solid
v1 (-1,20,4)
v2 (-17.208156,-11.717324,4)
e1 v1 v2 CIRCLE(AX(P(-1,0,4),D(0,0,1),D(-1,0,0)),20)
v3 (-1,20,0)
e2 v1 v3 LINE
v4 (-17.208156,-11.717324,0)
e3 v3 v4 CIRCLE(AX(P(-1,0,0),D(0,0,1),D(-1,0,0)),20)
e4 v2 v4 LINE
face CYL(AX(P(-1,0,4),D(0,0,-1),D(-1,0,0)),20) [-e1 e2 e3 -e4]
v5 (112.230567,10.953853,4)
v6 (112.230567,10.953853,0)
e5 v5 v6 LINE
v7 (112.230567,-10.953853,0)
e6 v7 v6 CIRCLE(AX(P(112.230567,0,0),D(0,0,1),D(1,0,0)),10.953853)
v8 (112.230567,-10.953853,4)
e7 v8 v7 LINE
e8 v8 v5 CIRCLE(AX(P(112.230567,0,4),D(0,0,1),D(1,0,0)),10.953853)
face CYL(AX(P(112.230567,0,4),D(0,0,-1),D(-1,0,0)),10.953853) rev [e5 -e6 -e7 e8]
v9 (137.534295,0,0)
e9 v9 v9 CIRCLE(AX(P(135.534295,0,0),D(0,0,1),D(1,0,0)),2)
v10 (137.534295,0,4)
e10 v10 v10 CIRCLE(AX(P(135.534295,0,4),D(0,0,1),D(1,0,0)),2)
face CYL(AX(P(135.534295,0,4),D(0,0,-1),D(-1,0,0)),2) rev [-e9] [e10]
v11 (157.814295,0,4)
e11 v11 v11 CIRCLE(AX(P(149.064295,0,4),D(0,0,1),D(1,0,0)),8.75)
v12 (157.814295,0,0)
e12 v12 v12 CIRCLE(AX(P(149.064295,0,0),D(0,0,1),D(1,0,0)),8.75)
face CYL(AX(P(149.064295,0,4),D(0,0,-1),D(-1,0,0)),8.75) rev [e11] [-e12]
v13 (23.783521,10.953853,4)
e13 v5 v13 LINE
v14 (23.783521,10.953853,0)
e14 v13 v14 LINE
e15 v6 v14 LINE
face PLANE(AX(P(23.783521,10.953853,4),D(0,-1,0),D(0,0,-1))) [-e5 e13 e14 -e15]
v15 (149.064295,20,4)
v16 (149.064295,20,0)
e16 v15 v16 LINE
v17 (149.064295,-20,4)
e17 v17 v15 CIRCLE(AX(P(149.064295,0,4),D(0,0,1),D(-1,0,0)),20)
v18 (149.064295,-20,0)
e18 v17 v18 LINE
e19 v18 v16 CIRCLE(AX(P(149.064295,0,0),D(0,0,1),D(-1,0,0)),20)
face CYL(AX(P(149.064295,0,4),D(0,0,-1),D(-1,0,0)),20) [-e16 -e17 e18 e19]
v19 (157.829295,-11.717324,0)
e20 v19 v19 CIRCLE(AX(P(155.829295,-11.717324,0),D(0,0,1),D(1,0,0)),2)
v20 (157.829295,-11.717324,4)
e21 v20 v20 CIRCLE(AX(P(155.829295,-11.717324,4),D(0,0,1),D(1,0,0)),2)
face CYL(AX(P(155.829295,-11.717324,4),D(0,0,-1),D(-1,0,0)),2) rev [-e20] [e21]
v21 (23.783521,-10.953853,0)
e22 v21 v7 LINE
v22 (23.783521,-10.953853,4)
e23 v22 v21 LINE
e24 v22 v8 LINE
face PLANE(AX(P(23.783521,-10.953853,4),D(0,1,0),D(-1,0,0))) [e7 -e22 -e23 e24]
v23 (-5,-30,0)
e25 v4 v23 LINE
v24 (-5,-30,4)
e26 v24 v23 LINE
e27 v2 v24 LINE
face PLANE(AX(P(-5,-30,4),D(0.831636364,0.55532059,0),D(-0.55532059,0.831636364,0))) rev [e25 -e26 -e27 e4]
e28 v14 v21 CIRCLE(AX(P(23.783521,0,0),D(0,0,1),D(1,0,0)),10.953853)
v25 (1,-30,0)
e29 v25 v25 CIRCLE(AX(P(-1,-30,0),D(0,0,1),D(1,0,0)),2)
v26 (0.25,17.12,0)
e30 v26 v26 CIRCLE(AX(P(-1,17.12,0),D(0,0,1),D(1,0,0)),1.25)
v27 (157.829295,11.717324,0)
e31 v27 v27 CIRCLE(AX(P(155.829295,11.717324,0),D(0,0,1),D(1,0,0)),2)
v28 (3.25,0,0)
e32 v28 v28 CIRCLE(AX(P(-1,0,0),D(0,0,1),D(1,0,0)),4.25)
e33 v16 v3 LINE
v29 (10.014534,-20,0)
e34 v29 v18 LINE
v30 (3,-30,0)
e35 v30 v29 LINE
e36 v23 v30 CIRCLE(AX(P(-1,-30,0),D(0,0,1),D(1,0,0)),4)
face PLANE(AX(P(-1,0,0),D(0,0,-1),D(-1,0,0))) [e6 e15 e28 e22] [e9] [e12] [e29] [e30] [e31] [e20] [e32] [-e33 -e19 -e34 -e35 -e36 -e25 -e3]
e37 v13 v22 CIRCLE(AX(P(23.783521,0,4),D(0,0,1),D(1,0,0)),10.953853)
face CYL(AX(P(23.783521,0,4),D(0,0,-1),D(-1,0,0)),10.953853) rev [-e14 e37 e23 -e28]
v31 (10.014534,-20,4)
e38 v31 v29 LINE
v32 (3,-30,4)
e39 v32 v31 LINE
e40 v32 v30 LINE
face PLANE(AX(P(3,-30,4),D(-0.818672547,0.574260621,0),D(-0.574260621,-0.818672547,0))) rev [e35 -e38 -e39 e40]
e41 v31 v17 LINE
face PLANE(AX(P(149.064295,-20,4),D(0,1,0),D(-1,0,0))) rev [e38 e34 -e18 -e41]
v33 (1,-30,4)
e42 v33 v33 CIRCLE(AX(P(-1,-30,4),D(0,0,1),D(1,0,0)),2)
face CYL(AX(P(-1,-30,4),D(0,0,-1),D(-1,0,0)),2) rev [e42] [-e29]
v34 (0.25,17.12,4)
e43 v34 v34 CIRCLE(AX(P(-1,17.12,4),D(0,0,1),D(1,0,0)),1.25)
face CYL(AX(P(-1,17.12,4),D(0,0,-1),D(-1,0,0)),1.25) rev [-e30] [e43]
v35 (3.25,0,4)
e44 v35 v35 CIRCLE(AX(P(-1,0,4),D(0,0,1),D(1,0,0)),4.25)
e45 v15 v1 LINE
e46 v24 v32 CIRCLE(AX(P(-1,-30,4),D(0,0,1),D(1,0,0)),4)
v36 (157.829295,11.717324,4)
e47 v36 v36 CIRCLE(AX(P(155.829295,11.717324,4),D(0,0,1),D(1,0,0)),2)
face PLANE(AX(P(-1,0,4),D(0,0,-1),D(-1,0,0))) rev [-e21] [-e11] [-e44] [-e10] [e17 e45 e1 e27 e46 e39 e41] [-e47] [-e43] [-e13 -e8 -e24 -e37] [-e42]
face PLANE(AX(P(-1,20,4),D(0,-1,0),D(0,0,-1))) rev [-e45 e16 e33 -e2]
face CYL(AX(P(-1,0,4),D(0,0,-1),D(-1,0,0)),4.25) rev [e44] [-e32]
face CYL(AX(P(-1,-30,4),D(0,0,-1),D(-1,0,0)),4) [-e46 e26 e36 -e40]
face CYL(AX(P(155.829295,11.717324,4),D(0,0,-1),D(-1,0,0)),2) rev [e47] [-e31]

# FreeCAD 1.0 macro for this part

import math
import FreeCAD as App
import Part
import Sketcher
Q = App.Units.Quantity

doc = App.newDocument("Part")
body = doc.addObject("PartDesign::Body", "Body")

sketch1 = body.newObject("Sketcher::SketchObject", "Sketch")
sketch1.AttachmentSupport = (doc.getObject("XY_Plane"), [""])
sketch1.MapMode = "FlatFace"
sketch1.addGeometry(Part.LineSegment(App.Vector(-17.2, -11.7, 0), App.Vector(-5, -30, 0)), False)
sketch1.addGeometry(Part.ArcOfCircle(Part.Circle(App.Vector(-1, -30, 0), App.Vector(0, 0, 1), 4), math.radians(180), math.radians(360)), False)
sketch1.addGeometry(Part.LineSegment(App.Vector(3, -30, 0), App.Vector(10, -20, 0)), False)
sketch1.addGeometry(Part.LineSegment(App.Vector(10, -20, 0), App.Vector(149.1, -20, 0)), False)
sketch1.addGeometry(Part.ArcOfCircle(Part.Circle(App.Vector(149.1, 0, 0), App.Vector(0, 0, 1), 20), math.radians(-90), math.radians(90)), False)
sketch1.addGeometry(Part.LineSegment(App.Vector(149.1, 20, 0), App.Vector(-1, 20, 0)), False)
sketch1.addGeometry(Part.ArcOfCircle(Part.Circle(App.Vector(-1, 0, 0), App.Vector(0, 0, 1), 20), math.radians(90), math.radians(216)), False)
sketch1.addGeometry(Part.Circle(App.Vector(155.8, -11.7, 0), App.Vector(0, 0, 1), 2), False)
sketch1.addGeometry(Part.Circle(App.Vector(-1, -30, 0), App.Vector(0, 0, 1), 2), False)
sketch1.addGeometry(Part.Circle(App.Vector(149.1, 0, 0), App.Vector(0, 0, 1), 8.8), False)
sketch1.addGeometry(Part.Circle(App.Vector(135.5, 0, 0), App.Vector(0, 0, 1), 2), False)
sketch1.addGeometry(Part.Circle(App.Vector(155.8, 11.7, 0), App.Vector(0, 0, 1), 2), False)
sketch1.addGeometry(Part.LineSegment(App.Vector(23.8, 11, 0), App.Vector(112.2, 11, 0)), False)
sketch1.addGeometry(Part.ArcOfCircle(Part.Circle(App.Vector(112.2, 0, 0), App.Vector(0, 0, 1), 11), math.radians(-90), math.radians(90)), False)
sketch1.addGeometry(Part.LineSegment(App.Vector(112.2, -11, 0), App.Vector(23.8, -11, 0)), False)
sketch1.addGeometry(Part.ArcOfCircle(Part.Circle(App.Vector(23.8, 0, 0), App.Vector(0, 0, 1), 11), math.radians(90), math.radians(270)), False)
sketch1.addGeometry(Part.Circle(App.Vector(-1, 0, 0), App.Vector(0, 0, 1), 4.2), False)
sketch1.addGeometry(Part.Circle(App.Vector(-1, 17.1, 0), App.Vector(0, 0, 1), 1.2), False)
sketch1.addConstraint(Sketcher.Constraint("Coincident", 0, 2, 1, 1))
sketch1.addConstraint(Sketcher.Constraint("Coincident", 1, 2, 2, 1))
sketch1.addConstraint(Sketcher.Constraint("Coincident", 2, 2, 3, 1))
sketch1.addConstraint(Sketcher.Constraint("Tangent", 3, 2, 4, 1))
sketch1.addConstraint(Sketcher.Constraint("Tangent", 4, 2, 5, 1))
sketch1.addConstraint(Sketcher.Constraint("Tangent", 5, 2, 6, 1))
sketch1.addConstraint(Sketcher.Constraint("Coincident", 6, 2, 0, 1))
sketch1.addConstraint(Sketcher.Constraint("Tangent", 12, 2, 13, 2))
sketch1.addConstraint(Sketcher.Constraint("Tangent", 13, 1, 14, 1))
sketch1.addConstraint(Sketcher.Constraint("Tangent", 14, 2, 15, 2))
sketch1.addConstraint(Sketcher.Constraint("Tangent", 15, 1, 12, 1))
sketch1.addConstraint(Sketcher.Constraint("Horizontal", 3))
sketch1.addConstraint(Sketcher.Constraint("Horizontal", 5))
sketch1.addConstraint(Sketcher.Constraint("Horizontal", 12))
sketch1.addConstraint(Sketcher.Constraint("Horizontal", 14))
sketch1.addConstraint(Sketcher.Constraint("Coincident", 8, 3, 1, 3))
sketch1.addConstraint(Sketcher.Constraint("Coincident", 9, 3, 4, 3))
sketch1.addConstraint(Sketcher.Constraint("Coincident", 16, 3, 6, 3))
sketch1.addConstraint(Sketcher.Constraint("Equal", 4, 6))
sketch1.addConstraint(Sketcher.Constraint("Equal", 7, 8))
sketch1.addConstraint(Sketcher.Constraint("Equal", 8, 10))
sketch1.addConstraint(Sketcher.Constraint("Equal", 10, 11))
sketch1.addConstraint(Sketcher.Constraint("Symmetric", 7, 3, 11, 3, -1))
sketch1.addConstraint(Sketcher.Constraint("PointOnObject", 4, 3, -1))
sketch1.addConstraint(Sketcher.Constraint("PointOnObject", 10, 3, -1))
sketch1.addConstraint(Sketcher.Constraint("PointOnObject", 13, 3, -1))
sketch1.addConstraint(Sketcher.Constraint("Horizontal", 8, 3, 0, 2))
sketch1.addConstraint(Sketcher.Constraint("Horizontal", 0, 2, 1, 2))
sketch1.addConstraint(Sketcher.Constraint("Horizontal", 7, 3, 6, 2))
sketch1.addConstraint(Sketcher.Constraint("Vertical", 1, 3, 6, 3))
sketch1.addConstraint(Sketcher.Constraint("Vertical", 16, 3, 17, 3))
sketch1.addConstraint(Sketcher.Constraint("Diameter", 7, Q("4 mm")))
sketch1.addConstraint(Sketcher.Constraint("Radius", 1, Q("4 mm")))
sketch1.addConstraint(Sketcher.Constraint("Radius", 4, Q("20 mm")))
sketch1.addConstraint(Sketcher.Constraint("Diameter", 9, Q("17.5 mm")))
sketch1.addConstraint(Sketcher.Constraint("Diameter", 16, Q("8.5 mm")))
sketch1.addConstraint(Sketcher.Constraint("Diameter", 17, Q("2.5 mm")))
sketch1.addConstraint(Sketcher.Constraint("DistanceX", 1, 3, -1, 1, Q("1 mm")))
sketch1.addConstraint(Sketcher.Constraint("DistanceY", 1, 3, -1, 1, Q("30 mm")))
sketch1.addConstraint(Sketcher.Constraint("DistanceY", -1, 1, 17, 3, Q("17.12 mm")))
sketch1.addConstraint(Sketcher.Constraint("DistanceX", 10, 3, 4, 3, Q("13.53 mm")))
sketch1.addConstraint(Sketcher.Constraint("Radius", 13, Q("10.953853 mm")))
sketch1.addConstraint(Sketcher.Constraint("DistanceX", 4, 3, 7, 3, Q("6.765 mm")))
sketch1.addConstraint(Sketcher.Constraint("DistanceX", 3, 1, 3, 2, Q("139.049761 mm")))
sketch1.addConstraint(Sketcher.Constraint("Distance", 0, Q("21.983979 mm")))
sketch1.addConstraint(Sketcher.Constraint("DistanceX", 5, 2, 5, 1, Q("150.064295 mm")))
sketch1.addConstraint(Sketcher.Constraint("DistanceX", 12, 1, 12, 2, Q("88.447046 mm")))
sketch1.addConstraint(Sketcher.Constraint("DistanceX", -1, 1, 15, 3, Q("23.783521 mm")))
pad1 = body.newObject("PartDesign::Pad", "Pad")
pad1.Profile = sketch1
pad1.Length = 4

doc.recompute()
